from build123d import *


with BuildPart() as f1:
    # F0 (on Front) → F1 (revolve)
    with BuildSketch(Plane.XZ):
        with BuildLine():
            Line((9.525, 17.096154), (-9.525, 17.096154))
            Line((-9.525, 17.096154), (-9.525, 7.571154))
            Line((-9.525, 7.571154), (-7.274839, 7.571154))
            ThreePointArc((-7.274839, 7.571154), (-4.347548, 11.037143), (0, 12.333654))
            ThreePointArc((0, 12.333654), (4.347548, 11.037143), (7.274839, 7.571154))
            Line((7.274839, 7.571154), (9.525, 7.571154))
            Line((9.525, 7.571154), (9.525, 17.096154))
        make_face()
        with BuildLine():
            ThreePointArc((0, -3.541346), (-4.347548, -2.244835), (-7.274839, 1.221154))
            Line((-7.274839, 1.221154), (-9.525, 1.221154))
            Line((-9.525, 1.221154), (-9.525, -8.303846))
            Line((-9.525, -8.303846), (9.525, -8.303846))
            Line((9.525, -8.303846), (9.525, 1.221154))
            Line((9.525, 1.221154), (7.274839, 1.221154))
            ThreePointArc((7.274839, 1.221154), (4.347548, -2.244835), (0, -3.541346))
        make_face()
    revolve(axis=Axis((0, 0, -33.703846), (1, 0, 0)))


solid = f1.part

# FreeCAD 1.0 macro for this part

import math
import FreeCAD as App
import Part
import Sketcher
Q = App.Units.Quantity

doc = App.newDocument("Part")
params = doc.addObject("Spreadsheet::Sheet", "Params")
for row, (alias, value) in enumerate([
    ("sketch1_radius", "0.3125 in"),
    ("sketch1_width", "0.75 in"),
    ("sketch1_height", "0.375 in"),
    ("revolution_angle", "360 deg"),
], start=1):
    params.set(f"A{row}", alias)
    params.set(f"B{row}", "=" + value)
    params.setAlias(f"B{row}", alias)

body = doc.addObject("PartDesign::Body", "Body")
body.AllowCompound = True

sketch1 = body.newObject("Sketcher::SketchObject", "Sketch")
sketch1.AttachmentSupport = (doc.getObject("XZ_Plane"), [""])
sketch1.MapMode = "FlatFace"
sketch1.addGeometry([
    Part.LineSegment(App.Vector(9.5, 17.1, 0), App.Vector(-9.5, 17.1, 0)),
    Part.LineSegment(App.Vector(-9.5, 17.1, 0), App.Vector(-9.5, 7.6, 0)),
    Part.LineSegment(App.Vector(-9.5, 7.6, 0), App.Vector(-7.3, 7.6, 0)),
    Part.ArcOfCircle(Part.Circle(App.Vector(0, 4.4, 0), App.Vector(0, 0, 1), 7.9), math.radians(90), math.radians(156)),
    Part.ArcOfCircle(Part.Circle(App.Vector(0, 4.4, 0), App.Vector(0, 0, 1), 7.9), math.radians(24), math.radians(90)),
    Part.LineSegment(App.Vector(7.3, 7.6, 0), App.Vector(9.5, 7.6, 0)),
    Part.LineSegment(App.Vector(9.5, 7.6, 0), App.Vector(9.5, 17.1, 0)),
    Part.ArcOfCircle(Part.Circle(App.Vector(0, 4.4, 0), App.Vector(0, 0, 1), 7.9), math.radians(-156), math.radians(-90)),
    Part.LineSegment(App.Vector(-7.3, 1.2, 0), App.Vector(-9.5, 1.2, 0)),
    Part.LineSegment(App.Vector(-9.5, 1.2, 0), App.Vector(-9.5, -8.3, 0)),
    Part.LineSegment(App.Vector(-9.5, -8.3, 0), App.Vector(9.5, -8.3, 0)),
    Part.LineSegment(App.Vector(9.5, -8.3, 0), App.Vector(9.5, 1.2, 0)),
    Part.LineSegment(App.Vector(9.5, 1.2, 0), App.Vector(7.3, 1.2, 0)),
    Part.ArcOfCircle(Part.Circle(App.Vector(0, 4.4, 0), App.Vector(0, 0, 1), 7.9), math.radians(-90), math.radians(-24)),
], False)
sketch1.addGeometry(Part.LineSegment(App.Vector(-9.5, -33.7, 0), App.Vector(9.5, -33.7, 0)), True)
sketch1.addConstraint([
    Sketcher.Constraint("Coincident", 0, 2, 1, 1),
    Sketcher.Constraint("Coincident", 1, 2, 2, 1),
    Sketcher.Constraint("Coincident", 2, 2, 3, 2),
    Sketcher.Constraint("Tangent", 3, 1, 4, 2),
    Sketcher.Constraint("Coincident", 4, 1, 5, 1),
    Sketcher.Constraint("Coincident", 5, 2, 6, 1),
    Sketcher.Constraint("Coincident", 6, 2, 0, 1),
    Sketcher.Constraint("Coincident", 7, 1, 8, 1),
    Sketcher.Constraint("Coincident", 8, 2, 9, 1),
    Sketcher.Constraint("Coincident", 9, 2, 10, 1),
    Sketcher.Constraint("Coincident", 10, 2, 11, 1),
    Sketcher.Constraint("Coincident", 11, 2, 12, 1),
    Sketcher.Constraint("Coincident", 12, 2, 13, 2),
    Sketcher.Constraint("Tangent", 13, 1, 7, 2),
    Sketcher.Constraint("Horizontal", 0),
    Sketcher.Constraint("Vertical", 1),
    Sketcher.Constraint("Horizontal", 2),
    Sketcher.Constraint("Horizontal", 5),
    Sketcher.Constraint("Vertical", 6),
    Sketcher.Constraint("Horizontal", 8),
    Sketcher.Constraint("Vertical", 9),
    Sketcher.Constraint("Horizontal", 10),
    Sketcher.Constraint("Vertical", 11),
    Sketcher.Constraint("Horizontal", 12),
    Sketcher.Constraint("Horizontal", 14),
    Sketcher.Constraint("Coincident", 7, 3, 3, 3),
    Sketcher.Constraint("Equal", 3, 4),
    Sketcher.Constraint("Equal", 4, 7),
    Sketcher.Constraint("Equal", 7, 13),
    Sketcher.Constraint("Symmetric", 2, 2, 4, 1, -2),
    Sketcher.Constraint("Symmetric", 8, 2, 11, 2, -2),
    Sketcher.Constraint("PointOnObject", 3, 1, -2),
    Sketcher.Constraint("PointOnObject", 13, 1, -2),
    Sketcher.Constraint("Vertical", 2, 2, 7, 1),
    Sketcher.Constraint("Vertical", 1, 2, 8, 2),
    Sketcher.Constraint("Vertical", 6, 2, 10, 2),
    Sketcher.Constraint("Vertical", 9, 2, 14, 1),
    Sketcher.Constraint("Vertical", 11, 2, 14, 2),
    Sketcher.Constraint("Equal", 6, 9),
    Sketcher.Constraint("Radius", 3, Q("0.3125 in")),
    Sketcher.Constraint("DistanceY", 14, 1, 9, 2, Q("1 in")),
    Sketcher.Constraint("DistanceX", 0, 2, 0, 1, Q("0.75 in")),
    Sketcher.Constraint("DistanceY", 3, 3, 0, 2, Q("0.5 in")),
    Sketcher.Constraint("DistanceY", 1, 2, 1, 1, Q("0.375 in")),
    Sketcher.Constraint("DistanceY", -1, 1, 3, 3, Q("4.396154 mm")),
])
sketch1.setExpression("Constraints[39]", "Params.sketch1_radius")
sketch1.setExpression("Constraints[41]", "Params.sketch1_width")
sketch1.setExpression("Constraints[43]", "Params.sketch1_height")
revolution = body.newObject("PartDesign::Revolution", "Revolution")
revolution.Profile = sketch1
revolution.ReferenceAxis = (sketch1, ["Axis0"])
revolution.setExpression("Angle", "Params.revolution_angle")

doc.recompute()
